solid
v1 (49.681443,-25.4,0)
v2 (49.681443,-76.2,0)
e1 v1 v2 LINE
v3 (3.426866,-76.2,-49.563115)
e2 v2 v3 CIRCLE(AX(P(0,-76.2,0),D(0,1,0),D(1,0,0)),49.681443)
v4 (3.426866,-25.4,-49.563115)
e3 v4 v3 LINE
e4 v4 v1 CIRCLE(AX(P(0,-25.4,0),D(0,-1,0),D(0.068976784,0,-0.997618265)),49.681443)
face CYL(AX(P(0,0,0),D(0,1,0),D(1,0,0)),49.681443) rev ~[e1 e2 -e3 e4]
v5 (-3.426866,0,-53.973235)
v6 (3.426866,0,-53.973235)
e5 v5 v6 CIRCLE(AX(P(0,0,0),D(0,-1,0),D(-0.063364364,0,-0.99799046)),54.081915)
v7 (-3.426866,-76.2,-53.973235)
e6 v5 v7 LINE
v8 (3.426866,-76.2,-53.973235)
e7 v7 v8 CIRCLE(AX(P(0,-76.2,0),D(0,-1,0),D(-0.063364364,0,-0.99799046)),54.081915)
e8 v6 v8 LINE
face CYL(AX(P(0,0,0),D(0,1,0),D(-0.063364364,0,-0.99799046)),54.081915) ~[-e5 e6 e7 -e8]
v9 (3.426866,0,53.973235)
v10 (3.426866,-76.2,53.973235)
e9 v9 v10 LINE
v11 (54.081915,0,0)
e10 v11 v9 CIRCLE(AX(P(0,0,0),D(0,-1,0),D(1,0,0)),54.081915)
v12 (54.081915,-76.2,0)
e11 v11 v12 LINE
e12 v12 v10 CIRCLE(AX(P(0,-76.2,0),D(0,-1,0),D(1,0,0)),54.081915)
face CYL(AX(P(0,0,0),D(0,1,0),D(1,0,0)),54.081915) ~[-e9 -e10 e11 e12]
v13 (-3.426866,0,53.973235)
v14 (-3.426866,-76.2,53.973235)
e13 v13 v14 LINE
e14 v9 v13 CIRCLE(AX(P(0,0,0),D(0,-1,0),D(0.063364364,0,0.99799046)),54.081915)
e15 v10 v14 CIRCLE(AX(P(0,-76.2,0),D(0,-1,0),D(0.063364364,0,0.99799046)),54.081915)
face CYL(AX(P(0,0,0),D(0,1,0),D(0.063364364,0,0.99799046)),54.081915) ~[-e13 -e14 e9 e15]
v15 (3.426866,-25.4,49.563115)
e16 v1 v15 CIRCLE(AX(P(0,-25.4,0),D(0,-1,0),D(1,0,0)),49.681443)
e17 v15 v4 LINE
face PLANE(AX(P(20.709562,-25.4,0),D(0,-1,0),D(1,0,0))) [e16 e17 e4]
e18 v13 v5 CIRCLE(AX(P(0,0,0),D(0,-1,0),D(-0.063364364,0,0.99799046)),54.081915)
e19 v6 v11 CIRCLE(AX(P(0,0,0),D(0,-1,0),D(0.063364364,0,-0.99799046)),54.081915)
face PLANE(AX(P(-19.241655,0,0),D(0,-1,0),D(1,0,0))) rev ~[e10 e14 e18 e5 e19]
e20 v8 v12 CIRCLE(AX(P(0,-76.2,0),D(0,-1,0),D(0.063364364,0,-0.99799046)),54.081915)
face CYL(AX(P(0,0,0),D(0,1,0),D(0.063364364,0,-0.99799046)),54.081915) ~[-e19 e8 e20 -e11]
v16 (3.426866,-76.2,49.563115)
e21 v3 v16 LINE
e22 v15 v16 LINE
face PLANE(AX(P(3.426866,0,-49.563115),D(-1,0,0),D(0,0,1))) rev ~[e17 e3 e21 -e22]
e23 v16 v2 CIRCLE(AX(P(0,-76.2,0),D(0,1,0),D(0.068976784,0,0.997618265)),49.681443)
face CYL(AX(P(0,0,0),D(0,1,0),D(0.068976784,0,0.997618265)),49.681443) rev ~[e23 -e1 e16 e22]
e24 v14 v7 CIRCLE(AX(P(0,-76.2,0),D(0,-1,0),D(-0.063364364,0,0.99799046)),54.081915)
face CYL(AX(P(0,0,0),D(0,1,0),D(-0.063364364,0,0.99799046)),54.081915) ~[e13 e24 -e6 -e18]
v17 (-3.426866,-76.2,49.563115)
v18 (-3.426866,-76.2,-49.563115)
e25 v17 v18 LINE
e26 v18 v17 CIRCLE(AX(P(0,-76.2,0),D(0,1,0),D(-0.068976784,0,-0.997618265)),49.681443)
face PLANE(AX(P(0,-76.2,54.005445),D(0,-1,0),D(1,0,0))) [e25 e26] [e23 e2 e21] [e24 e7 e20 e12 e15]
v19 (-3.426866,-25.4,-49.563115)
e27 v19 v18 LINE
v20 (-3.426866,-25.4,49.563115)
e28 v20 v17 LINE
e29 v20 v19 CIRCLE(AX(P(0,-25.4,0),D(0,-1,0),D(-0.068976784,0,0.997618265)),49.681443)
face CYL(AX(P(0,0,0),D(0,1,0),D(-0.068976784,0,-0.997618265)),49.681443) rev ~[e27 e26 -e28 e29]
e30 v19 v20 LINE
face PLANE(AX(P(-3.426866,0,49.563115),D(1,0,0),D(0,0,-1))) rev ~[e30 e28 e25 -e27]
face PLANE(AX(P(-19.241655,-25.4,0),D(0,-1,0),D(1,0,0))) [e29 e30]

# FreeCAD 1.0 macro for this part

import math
import FreeCAD as App
import Part
import Sketcher
from FreeCAD import Vector
Q = App.Units.Quantity

doc = App.newDocument("Part")
body = doc.addObject("PartDesign::Body", "Body")

# Sketch on XZ plane
sketch1 = body.newObject("Sketcher::SketchObject", "Sketch")
sketch1.AttachmentSupport = (doc.getObject("XZ_Plane"), [""])
sketch1.MapMode = "FlatFace"
sketch1.addGeometry([
    Part.ArcOfCircle(Part.Circle(Vector(0, 0, 0), Vector(0, 0, 1), 54), math.radians(86.37), math.radians(93.63)),  # 0
    Part.ArcOfCircle(Part.Circle(Vector(0, 0, 0), Vector(0, 0, 1), 54), math.radians(94), math.radians(266)),  # 1
    Part.ArcOfCircle(Part.Circle(Vector(0, 0, 0), Vector(0, 0, 1), 54), math.radians(-93.63), math.radians(-86.37)),  # 2
    Part.ArcOfCircle(Part.Circle(Vector(0, 0, 0), Vector(0, 0, 1), 54), math.radians(-86), math.radians(0)),  # 3
    Part.ArcOfCircle(Part.Circle(Vector(0, 0, 0), Vector(0, 0, 1), 54), math.radians(0), math.radians(86)),  # 4
    Part.ArcOfCircle(Part.Circle(Vector(0, 0, 0), Vector(0, 0, 1), 50), math.radians(0), math.radians(86)),  # 5
    Part.ArcOfCircle(Part.Circle(Vector(0, 0, 0), Vector(0, 0, 1), 50), math.radians(-86), math.radians(0)),  # 6
    Part.LineSegment(Vector(3, -50, 0), Vector(3, 50, 0)),  # 7
    Part.ArcOfCircle(Part.Circle(Vector(0, 0, 0), Vector(0, 0, 1), 50), math.radians(94), math.radians(266)),  # 8
    Part.LineSegment(Vector(-3, 50, 0), Vector(-3, -50, 0)),  # 9
], False)
sketch1.addConstraint([
    Sketcher.Constraint("Tangent", 0, 2, 1, 1),
    Sketcher.Constraint("Tangent", 1, 2, 2, 1),
    Sketcher.Constraint("Tangent", 2, 2, 3, 1),
    Sketcher.Constraint("Tangent", 3, 2, 4, 1),
    Sketcher.Constraint("Tangent", 4, 2, 0, 1),
    Sketcher.Constraint("Tangent", 5, 1, 6, 2),
    Sketcher.Constraint("Coincident", 6, 1, 7, 1),
    Sketcher.Constraint("Coincident", 7, 2, 5, 2),
    Sketcher.Constraint("Coincident", 8, 1, 9, 1),
    Sketcher.Constraint("Coincident", 9, 2, 8, 2),
    Sketcher.Constraint("Vertical", 7),
    Sketcher.Constraint("Vertical", 9),
    Sketcher.Constraint("Coincident", 0, 3, -1, 1),
    Sketcher.Constraint("Coincident", 2, 3, -1, 1),
    Sketcher.Constraint("Coincident", 5, 3, -1, 1),
    Sketcher.Constraint("Coincident", 8, 3, -1, 1),
    Sketcher.Constraint("Equal", 5, 6),
    Sketcher.Constraint("Equal", 6, 8),
    Sketcher.Constraint("PointOnObject", 3, 2, -1),
    Sketcher.Constraint("PointOnObject", 5, 1, -1),
    Sketcher.Constraint("Horizontal", 1, 2, 2, 2),
    Sketcher.Constraint("Horizontal", 0, 2, 4, 2),
    Sketcher.Constraint("Horizontal", 7, 2, 8, 1),
    Sketcher.Constraint("Vertical", 0, 2, 1, 2),
    Sketcher.Constraint("Vertical", 4, 2, 6, 1),
    Sketcher.Constraint("Radius", 0, Q("54.081915 mm")),
    Sketcher.Constraint("Radius", 5, Q("49.681443 mm")),
    Sketcher.Constraint("DistanceY", 7, 1, 7, 2, Q("99.12623 mm")),
])
pad1 = body.newObject("PartDesign::Pad", "Pad")
pad1.Profile = sketch1
pad1.Length = Q("3 in")

# Sketch on XZ plane
sketch2 = body.newObject("Sketcher::SketchObject", "Sketch001")
sketch2.AttachmentSupport = (doc.getObject("XZ_Plane"), [""])
sketch2.MapMode = "FlatFace"
sketch2.addGeometry([
    Part.LineSegment(Vector(-3, -50, 0), Vector(-3, 50, 0)),  # 0
    Part.ArcOfCircle(Part.Circle(Vector(0, 0, 0), Vector(0, 0, 1), 50), math.radians(94), math.radians(266)),  # 1
    Part.ArcOfCircle(Part.Circle(Vector(0, 0, 0), Vector(0, 0, 1), 50), math.radians(0), math.radians(86)),  # 2
    Part.LineSegment(Vector(3, 50, 0), Vector(3, -50, 0)),  # 3
    Part.ArcOfCircle(Part.Circle(Vector(0, 0, 0), Vector(0, 0, 1), 50), math.radians(-86), math.radians(0)),  # 4
], False)
sketch2.addConstraint([
    Sketcher.Constraint("Coincident", 0, 1, 1, 2),
    Sketcher.Constraint("Coincident", 1, 1, 0, 2),
    Sketcher.Constraint("Coincident", 2, 2, 3, 1),
    Sketcher.Constraint("Coincident", 3, 2, 4, 1),
    Sketcher.Constraint("Tangent", 4, 2, 2, 1),
    Sketcher.Constraint("Vertical", 0),
    Sketcher.Constraint("Vertical", 3),
    Sketcher.Constraint("Coincident", 1, 3, -1, 1),
    Sketcher.Constraint("Coincident", 2, 3, -1, 1),
    Sketcher.Constraint("Equal", 1, 2),
    Sketcher.Constraint("Equal", 2, 4),
    Sketcher.Constraint("PointOnObject", 4, 2, -1),
    Sketcher.Constraint("Horizontal", 1, 1, 2, 2),
    Sketcher.Constraint("Radius", 1, Q("49.681443 mm")),
    Sketcher.Constraint("DistanceY", 0, 1, 0, 2, Q("99.12623 mm")),
])
pad2 = body.newObject("PartDesign::Pad", "Pad001")
pad2.Profile = sketch2
pad2.Length = Q("1 in")

doc.recompute()
